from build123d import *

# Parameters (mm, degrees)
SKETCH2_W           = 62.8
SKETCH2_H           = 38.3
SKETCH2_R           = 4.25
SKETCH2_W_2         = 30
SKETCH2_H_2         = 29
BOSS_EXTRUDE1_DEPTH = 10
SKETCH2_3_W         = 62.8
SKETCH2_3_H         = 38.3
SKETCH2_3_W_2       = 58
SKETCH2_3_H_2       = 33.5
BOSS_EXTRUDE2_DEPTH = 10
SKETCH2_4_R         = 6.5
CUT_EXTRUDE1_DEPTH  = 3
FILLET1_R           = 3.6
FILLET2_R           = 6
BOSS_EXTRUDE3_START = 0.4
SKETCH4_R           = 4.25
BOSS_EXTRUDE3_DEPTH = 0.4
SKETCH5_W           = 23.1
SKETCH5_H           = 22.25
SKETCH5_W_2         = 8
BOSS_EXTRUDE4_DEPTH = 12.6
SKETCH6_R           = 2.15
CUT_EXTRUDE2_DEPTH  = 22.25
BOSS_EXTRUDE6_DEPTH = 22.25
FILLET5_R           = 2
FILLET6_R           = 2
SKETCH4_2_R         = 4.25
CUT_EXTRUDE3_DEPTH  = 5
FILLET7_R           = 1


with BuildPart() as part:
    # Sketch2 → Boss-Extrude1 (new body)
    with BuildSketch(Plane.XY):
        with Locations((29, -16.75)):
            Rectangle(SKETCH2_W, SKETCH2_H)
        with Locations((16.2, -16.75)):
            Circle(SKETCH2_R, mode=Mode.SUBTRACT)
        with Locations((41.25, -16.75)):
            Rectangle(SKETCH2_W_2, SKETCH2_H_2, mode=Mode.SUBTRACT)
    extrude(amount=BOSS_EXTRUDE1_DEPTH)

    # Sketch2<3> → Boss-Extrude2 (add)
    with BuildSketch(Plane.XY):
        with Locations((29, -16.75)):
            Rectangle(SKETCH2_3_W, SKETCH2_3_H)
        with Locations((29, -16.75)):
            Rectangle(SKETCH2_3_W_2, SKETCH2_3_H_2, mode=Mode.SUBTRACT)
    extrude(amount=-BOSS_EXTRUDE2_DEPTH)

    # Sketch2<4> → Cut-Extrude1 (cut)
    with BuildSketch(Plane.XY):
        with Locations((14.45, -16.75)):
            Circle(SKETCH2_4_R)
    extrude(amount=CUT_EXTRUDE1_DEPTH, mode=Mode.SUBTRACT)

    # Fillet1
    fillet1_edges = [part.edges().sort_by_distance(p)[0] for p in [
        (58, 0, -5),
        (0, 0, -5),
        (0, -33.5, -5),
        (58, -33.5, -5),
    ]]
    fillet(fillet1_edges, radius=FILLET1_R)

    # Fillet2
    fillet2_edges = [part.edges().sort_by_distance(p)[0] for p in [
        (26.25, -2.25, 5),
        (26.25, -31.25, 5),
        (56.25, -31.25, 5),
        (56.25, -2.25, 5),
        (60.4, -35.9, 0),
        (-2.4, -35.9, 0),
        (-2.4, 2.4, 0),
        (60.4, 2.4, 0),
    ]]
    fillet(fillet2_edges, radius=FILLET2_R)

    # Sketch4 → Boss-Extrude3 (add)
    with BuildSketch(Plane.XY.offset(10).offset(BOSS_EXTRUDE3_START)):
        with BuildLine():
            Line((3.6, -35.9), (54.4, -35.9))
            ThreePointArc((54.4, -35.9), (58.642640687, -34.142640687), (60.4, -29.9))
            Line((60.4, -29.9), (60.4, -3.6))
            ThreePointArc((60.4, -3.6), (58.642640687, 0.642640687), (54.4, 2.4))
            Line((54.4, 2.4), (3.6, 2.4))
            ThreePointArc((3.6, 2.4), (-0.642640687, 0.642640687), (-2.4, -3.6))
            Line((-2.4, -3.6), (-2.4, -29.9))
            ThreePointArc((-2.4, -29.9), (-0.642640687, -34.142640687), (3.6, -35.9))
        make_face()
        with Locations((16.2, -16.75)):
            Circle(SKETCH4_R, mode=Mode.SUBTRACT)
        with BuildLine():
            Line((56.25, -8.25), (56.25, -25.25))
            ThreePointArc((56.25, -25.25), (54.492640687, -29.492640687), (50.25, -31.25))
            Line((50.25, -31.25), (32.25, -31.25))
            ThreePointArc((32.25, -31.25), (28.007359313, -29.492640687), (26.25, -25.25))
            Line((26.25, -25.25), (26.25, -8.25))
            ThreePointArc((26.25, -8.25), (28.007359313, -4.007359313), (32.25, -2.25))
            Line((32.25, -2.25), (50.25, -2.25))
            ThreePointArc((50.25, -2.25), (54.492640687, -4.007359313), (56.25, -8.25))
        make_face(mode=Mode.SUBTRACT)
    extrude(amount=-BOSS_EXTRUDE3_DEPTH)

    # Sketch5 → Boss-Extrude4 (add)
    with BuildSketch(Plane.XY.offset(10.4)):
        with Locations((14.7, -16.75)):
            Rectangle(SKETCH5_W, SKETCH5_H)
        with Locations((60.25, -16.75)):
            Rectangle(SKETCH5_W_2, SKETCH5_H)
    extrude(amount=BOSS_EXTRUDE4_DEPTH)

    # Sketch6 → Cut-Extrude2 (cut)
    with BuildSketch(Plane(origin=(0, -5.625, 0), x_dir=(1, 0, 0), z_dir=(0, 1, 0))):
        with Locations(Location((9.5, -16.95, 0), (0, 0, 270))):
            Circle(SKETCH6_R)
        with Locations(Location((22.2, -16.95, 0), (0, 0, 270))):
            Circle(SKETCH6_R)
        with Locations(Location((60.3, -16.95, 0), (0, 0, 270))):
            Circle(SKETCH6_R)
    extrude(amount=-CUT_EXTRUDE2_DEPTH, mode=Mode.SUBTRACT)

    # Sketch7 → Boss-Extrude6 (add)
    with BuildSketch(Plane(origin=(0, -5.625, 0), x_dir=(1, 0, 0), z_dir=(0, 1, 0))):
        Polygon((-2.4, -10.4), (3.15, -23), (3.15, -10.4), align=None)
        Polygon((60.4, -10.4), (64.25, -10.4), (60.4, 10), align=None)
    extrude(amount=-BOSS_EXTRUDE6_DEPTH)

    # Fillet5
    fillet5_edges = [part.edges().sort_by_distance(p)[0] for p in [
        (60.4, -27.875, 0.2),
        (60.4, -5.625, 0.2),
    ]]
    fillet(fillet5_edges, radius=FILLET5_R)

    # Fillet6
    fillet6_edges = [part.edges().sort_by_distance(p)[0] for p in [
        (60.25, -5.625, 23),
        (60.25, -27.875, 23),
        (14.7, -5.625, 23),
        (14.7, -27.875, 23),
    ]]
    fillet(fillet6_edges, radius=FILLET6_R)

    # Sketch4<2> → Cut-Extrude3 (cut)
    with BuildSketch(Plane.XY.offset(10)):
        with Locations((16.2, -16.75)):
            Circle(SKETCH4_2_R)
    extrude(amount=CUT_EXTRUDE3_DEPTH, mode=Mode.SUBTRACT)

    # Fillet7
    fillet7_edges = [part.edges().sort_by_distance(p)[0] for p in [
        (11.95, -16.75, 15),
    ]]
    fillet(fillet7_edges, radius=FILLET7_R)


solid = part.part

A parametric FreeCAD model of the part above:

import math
import FreeCAD as App
import Part
import Sketcher

V = App.Vector


def edges_at(feature, points):
    """Names of the edges that pass closest to the given points."""
    edges = feature.Shape.Edges
    near = lambda p: min(range(len(edges)), key=lambda i: edges[i].distToShape(Part.Vertex(*p))[0])
    return sorted({f"Edge{near(p) + 1}" for p in points})


def add_polygon(sketch, points):
    """Adds a closed chain of lines whose ends are joined by coincident constraints."""
    first, n = sketch.GeometryCount, len(points)
    for a, b in zip(points, points[1:] + points[:1]):
        sketch.addGeometry(Part.LineSegment(App.Vector(*a, 0), App.Vector(*b, 0)), False)
    for i in range(n):
        sketch.addConstraint(Sketcher.Constraint("Coincident", first + i, 2, first + (i + 1) % n, 1))

doc = App.newDocument("Part")
body = doc.addObject("PartDesign::Body", "Body")

# Sketch on XY plane
sketch1 = body.newObject("Sketcher::SketchObject", "Sketch")
sketch1.AttachmentSupport = (doc.getObject("XY_Plane"), [""])
sketch1.MapMode = "FlatFace"
add_polygon(sketch1, [(-2.4, 2.4), (-2.4, -35.9), (60.4, -35.9), (60.4, 2.4)])  # lines 0-3
sketch1.addGeometry(Part.Circle(V(16.2, -16.8, 0), V(0, 0, 1), 4.2), False)  # 4
add_polygon(sketch1, [(56.2, -31.2), (26.2, -31.2), (26.2, -2.2), (56.2, -2.2)])  # lines 5-8
sketch1.addConstraint(Sketcher.Constraint("Vertical", 0))
sketch1.addConstraint(Sketcher.Constraint("Horizontal", 1))
sketch1.addConstraint(Sketcher.Constraint("Vertical", 2))
sketch1.addConstraint(Sketcher.Constraint("Horizontal", 3))
sketch1.addConstraint(Sketcher.Constraint("Horizontal", 5))
sketch1.addConstraint(Sketcher.Constraint("Vertical", 6))
sketch1.addConstraint(Sketcher.Constraint("Horizontal", 7))
sketch1.addConstraint(Sketcher.Constraint("Vertical", 8))
sketch1.addConstraint(Sketcher.Constraint("Diameter", 4, 8.5))
sketch1.addConstraint(Sketcher.Constraint("DistanceX", 5, 2, 5, 1, 30.0))
sketch1.addConstraint(Sketcher.Constraint("DistanceY", 6, 1, 6, 2, 29.0))
sketch1.addConstraint(Sketcher.Constraint("DistanceX", 1, 1, 1, 2, 62.8))
sketch1.addConstraint(Sketcher.Constraint("DistanceY", 0, 2, 0, 1, 38.3))
sketch1.addConstraint(Sketcher.Constraint("DistanceX", -1, 1, 4, 3, 16.2))
sketch1.addConstraint(Sketcher.Constraint("DistanceX", 0, 2, -1, 1, 2.4))
sketch1.addConstraint(Sketcher.Constraint("DistanceY", 0, 2, -1, 1, 35.9))
sketch1.addConstraint(Sketcher.Constraint("DistanceY", 5, 2, 4, 3, 14.5))
sketch1.addConstraint(Sketcher.Constraint("DistanceY", 4, 3, -1, 1, 16.75))
sketch1.addConstraint(Sketcher.Constraint("DistanceX", -1, 1, 5, 2, 26.25))
pad1 = body.newObject("PartDesign::Pad", "Pad")
pad1.Profile = sketch1
pad1.Length = 10

# Sketch on XY plane
sketch2 = body.newObject("Sketcher::SketchObject", "Sketch001")
sketch2.AttachmentSupport = (doc.getObject("XY_Plane"), [""])
sketch2.MapMode = "FlatFace"
add_polygon(sketch2, [(-2, 2), (-2, -36), (60, -36), (60, 2)])  # lines 0-3
add_polygon(sketch2, [(58, -34), (0, -34), (0, 0), (58, 0)])  # lines 4-7
sketch2.addConstraint(Sketcher.Constraint("Vertical", 0))
sketch2.addConstraint(Sketcher.Constraint("Horizontal", 1))
sketch2.addConstraint(Sketcher.Constraint("Vertical", 2))
sketch2.addConstraint(Sketcher.Constraint("Horizontal", 3))
sketch2.addConstraint(Sketcher.Constraint("Horizontal", 4))
sketch2.addConstraint(Sketcher.Constraint("Vertical", 5))
sketch2.addConstraint(Sketcher.Constraint("Horizontal", 6))
sketch2.addConstraint(Sketcher.Constraint("Vertical", 7))
sketch2.addConstraint(Sketcher.Constraint("Coincident", 5, 2, -1, 1))
sketch2.addConstraint(Sketcher.Constraint("DistanceX", 4, 2, 4, 1, 58.0))
sketch2.addConstraint(Sketcher.Constraint("DistanceX", 1, 1, 1, 2, 62.8))
sketch2.addConstraint(Sketcher.Constraint("DistanceY", 0, 2, 0, 1, 38.3))
sketch2.addConstraint(Sketcher.Constraint("DistanceY", 5, 1, 5, 2, 33.5))
sketch2.addConstraint(Sketcher.Constraint("DistanceX", 0, 2, -1, 1, 2.4))
sketch2.addConstraint(Sketcher.Constraint("DistanceY", 0, 2, -1, 1, 35.9))
pad2 = body.newObject("PartDesign::Pad", "Pad001")
pad2.Profile = sketch2
pad2.Length = 10
pad2.Reversed = True

# Sketch on XY plane
sketch3 = body.newObject("Sketcher::SketchObject", "Sketch002")
sketch3.AttachmentSupport = (doc.getObject("XY_Plane"), [""])
sketch3.MapMode = "FlatFace"
sketch3.addGeometry(Part.Circle(V(14, -17, 0), V(0, 0, 1), 6), False)
sketch3.addConstraint(Sketcher.Constraint("Diameter", 0, 13.0))
sketch3.addConstraint(Sketcher.Constraint("DistanceX", -1, 1, 0, 3, 14.45))
sketch3.addConstraint(Sketcher.Constraint("DistanceY", 0, 3, -1, 1, 16.75))
pocket1 = body.newObject("PartDesign::Pocket", "Pocket")
pocket1.Profile = sketch3
pocket1.Length = 3
pocket1.Reversed = True
doc.recompute()

fillet = body.newObject("PartDesign::Fillet", "Fillet")
fillet.Base = (pocket1, edges_at(pocket1, [
    (58, 0, -5),
    (0, 0, -5),
    (0, -33.5, -5),
    (58, -33.5, -5),
]))
fillet.Radius = 3.6
doc.recompute()

fillet2 = body.newObject("PartDesign::Fillet", "Fillet001")
fillet2.Base = (fillet, edges_at(fillet, [
    (26.25, -2.25, 5),
    (26.25, -31.25, 5),
    (56.25, -31.25, 5),
    (56.25, -2.25, 5),
    (60.4, -35.9, 0),
    (-2.4, -35.9, 0),
    (-2.4, 2.4, 0),
    (60.4, 2.4, 0),
]))
fillet2.Radius = 6

# Sketch on XY plane
sketch4 = body.newObject("Sketcher::SketchObject", "Sketch003")
sketch4.AttachmentSupport = (doc.getObject("XY_Plane"), [""])
sketch4.MapMode = "FlatFace"
sketch4.AttachmentOffset = App.Placement(V(0, 0, 10.4), App.Rotation())
sketch4.addGeometry(Part.LineSegment(V(3.6, -35.9, 0), V(54.4, -35.9, 0)), False)
sketch4.addGeometry(Part.ArcOfCircle(Part.Circle(V(54.4, -29.9, 0), V(0, 0, 1), 6), math.radians(-90), math.radians(0)), False)
sketch4.addGeometry(Part.LineSegment(V(60.4, -29.9, 0), V(60.4, -3.6, 0)), False)
sketch4.addGeometry(Part.ArcOfCircle(Part.Circle(V(54.4, -3.6, 0), V(0, 0, 1), 6), math.radians(0), math.radians(90)), False)
sketch4.addGeometry(Part.LineSegment(V(54.4, 2.4, 0), V(3.6, 2.4, 0)), False)
sketch4.addGeometry(Part.ArcOfCircle(Part.Circle(V(3.6, -3.6, 0), V(0, 0, 1), 6), math.radians(90), math.radians(180)), False)
sketch4.addGeometry(Part.LineSegment(V(-2.4, -3.6, 0), V(-2.4, -29.9, 0)), False)
sketch4.addGeometry(Part.ArcOfCircle(Part.Circle(V(3.6, -29.9, 0), V(0, 0, 1), 6), math.radians(180), math.radians(270)), False)
sketch4.addGeometry(Part.Circle(V(16.2, -16.8, 0), V(0, 0, 1), 4.2), False)
sketch4.addGeometry(Part.ArcOfCircle(Part.Circle(V(50.2, -8.2, 0), V(0, 0, 1), 6), math.radians(0), math.radians(90)), False)
sketch4.addGeometry(Part.LineSegment(V(56.2, -8.2, 0), V(56.2, -25.2, 0)), False)
sketch4.addGeometry(Part.ArcOfCircle(Part.Circle(V(50.2, -25.2, 0), V(0, 0, 1), 6), math.radians(-90), math.radians(0)), False)
sketch4.addGeometry(Part.LineSegment(V(50.2, -31.2, 0), V(32.2, -31.2, 0)), False)
sketch4.addGeometry(Part.ArcOfCircle(Part.Circle(V(32.2, -25.2, 0), V(0, 0, 1), 6), math.radians(180), math.radians(270)), False)
sketch4.addGeometry(Part.LineSegment(V(26.2, -25.2, 0), V(26.2, -8.2, 0)), False)
sketch4.addGeometry(Part.ArcOfCircle(Part.Circle(V(32.2, -8.2, 0), V(0, 0, 1), 6), math.radians(90), math.radians(180)), False)
sketch4.addGeometry(Part.LineSegment(V(32.2, -2.2, 0), V(50.2, -2.2, 0)), False)
sketch4.addConstraint(Sketcher.Constraint("Tangent", 0, 2, 1, 1))
sketch4.addConstraint(Sketcher.Constraint("Tangent", 1, 2, 2, 1))
sketch4.addConstraint(Sketcher.Constraint("Tangent", 2, 2, 3, 1))
sketch4.addConstraint(Sketcher.Constraint("Tangent", 3, 2, 4, 1))
sketch4.addConstraint(Sketcher.Constraint("Tangent", 4, 2, 5, 1))
sketch4.addConstraint(Sketcher.Constraint("Tangent", 5, 2, 6, 1))
sketch4.addConstraint(Sketcher.Constraint("Tangent", 6, 2, 7, 1))
sketch4.addConstraint(Sketcher.Constraint("Tangent", 7, 2, 0, 1))
sketch4.addConstraint(Sketcher.Constraint("Tangent", 9, 1, 10, 1))
sketch4.addConstraint(Sketcher.Constraint("Tangent", 10, 2, 11, 2))
sketch4.addConstraint(Sketcher.Constraint("Tangent", 11, 1, 12, 1))
sketch4.addConstraint(Sketcher.Constraint("Tangent", 12, 2, 13, 2))
sketch4.addConstraint(Sketcher.Constraint("Tangent", 13, 1, 14, 1))
sketch4.addConstraint(Sketcher.Constraint("Tangent", 14, 2, 15, 2))
sketch4.addConstraint(Sketcher.Constraint("Tangent", 15, 1, 16, 1))
sketch4.addConstraint(Sketcher.Constraint("Tangent", 16, 2, 9, 2))
sketch4.addConstraint(Sketcher.Constraint("Horizontal", 0))
sketch4.addConstraint(Sketcher.Constraint("Vertical", 2))
sketch4.addConstraint(Sketcher.Constraint("Horizontal", 4))
sketch4.addConstraint(Sketcher.Constraint("Vertical", 6))
sketch4.addConstraint(Sketcher.Constraint("Vertical", 10))
sketch4.addConstraint(Sketcher.Constraint("Horizontal", 12))
sketch4.addConstraint(Sketcher.Constraint("Vertical", 14))
sketch4.addConstraint(Sketcher.Constraint("Horizontal", 16))
sketch4.addConstraint(Sketcher.Constraint("Equal", 1, 3))
sketch4.addConstraint(Sketcher.Constraint("Equal", 3, 5))
sketch4.addConstraint(Sketcher.Constraint("Equal", 5, 7))
sketch4.addConstraint(Sketcher.Constraint("Equal", 7, 9))
sketch4.addConstraint(Sketcher.Constraint("Equal", 9, 11))
sketch4.addConstraint(Sketcher.Constraint("Equal", 11, 13))
sketch4.addConstraint(Sketcher.Constraint("Equal", 13, 15))
sketch4.addConstraint(Sketcher.Constraint("Radius", 1, 6.0))
sketch4.addConstraint(Sketcher.Constraint("Diameter", 8, 8.5))
sketch4.addConstraint(Sketcher.Constraint("DistanceX", 12, 2, 12, 1, 18.0))
sketch4.addConstraint(Sketcher.Constraint("DistanceY", 10, 2, 10, 1, 17.0))
sketch4.addConstraint(Sketcher.Constraint("DistanceX", 0, 1, 0, 2, 50.8))
sketch4.addConstraint(Sketcher.Constraint("DistanceY", 2, 1, 2, 2, 26.3))
sketch4.addConstraint(Sketcher.Constraint("DistanceX", -1, 1, 1, 3, 54.4))
sketch4.addConstraint(Sketcher.Constraint("DistanceY", 1, 3, -1, 1, 29.9))
sketch4.addConstraint(Sketcher.Constraint("DistanceX", -1, 1, 8, 3, 16.2))
sketch4.addConstraint(Sketcher.Constraint("DistanceY", 8, 3, 9, 3, 8.5))
sketch4.addConstraint(Sketcher.Constraint("DistanceY", 8, 3, -1, 1, 16.75))
sketch4.addConstraint(Sketcher.Constraint("DistanceX", -1, 1, 9, 3, 50.25))
pad3 = body.newObject("PartDesign::Pad", "Pad002")
pad3.Profile = sketch4
pad3.Length = 0.4
pad3.Reversed = True

# Sketch on XY plane
sketch5 = body.newObject("Sketcher::SketchObject", "Sketch004")
sketch5.AttachmentSupport = (doc.getObject("XY_Plane"), [""])
sketch5.MapMode = "FlatFace"
sketch5.AttachmentOffset = App.Placement(V(0, 0, 10.4), App.Rotation())
add_polygon(sketch5, [(3, -6), (3, -28), (26, -28), (26, -6)])  # lines 0-3
add_polygon(sketch5, [(56, -6), (56, -28), (64, -28), (64, -6)])  # lines 4-7
sketch5.addConstraint(Sketcher.Constraint("Vertical", 0))
sketch5.addConstraint(Sketcher.Constraint("Horizontal", 1))
sketch5.addConstraint(Sketcher.Constraint("Vertical", 2))
sketch5.addConstraint(Sketcher.Constraint("Horizontal", 3))
sketch5.addConstraint(Sketcher.Constraint("Vertical", 4))
sketch5.addConstraint(Sketcher.Constraint("Horizontal", 5))
sketch5.addConstraint(Sketcher.Constraint("Vertical", 6))
sketch5.addConstraint(Sketcher.Constraint("Horizontal", 7))
sketch5.addConstraint(Sketcher.Constraint("Horizontal", 1, 2, 4, 2))
sketch5.addConstraint(Sketcher.Constraint("Horizontal", 3, 2, 6, 2))
sketch5.addConstraint(Sketcher.Constraint("DistanceX", 5, 1, 5, 2, 8.0))
sketch5.addConstraint(Sketcher.Constraint("DistanceX", 1, 1, 1, 2, 23.1))
sketch5.addConstraint(Sketcher.Constraint("DistanceX", 1, 2, 4, 2, 30.0))
sketch5.addConstraint(Sketcher.Constraint("DistanceY", 0, 2, 0, 1, 22.25))
sketch5.addConstraint(Sketcher.Constraint("DistanceX", -1, 1, 0, 2, 3.15))
sketch5.addConstraint(Sketcher.Constraint("DistanceY", 0, 2, -1, 1, 27.875))
pad4 = body.newObject("PartDesign::Pad", "Pad003")
pad4.Profile = sketch5
pad4.Length = 12.6

# Sketch on XZ plane
sketch6 = body.newObject("Sketcher::SketchObject", "Sketch005")
sketch6.AttachmentSupport = (doc.getObject("XZ_Plane"), [""])
sketch6.MapMode = "FlatFace"
sketch6.AttachmentOffset = App.Placement(V(0, 0, 5.625), App.Rotation())
sketch6.addGeometry(Part.Circle(V(9.5, 16.9, 0), V(0, 0, 1), 2.1), False)
sketch6.addGeometry(Part.Circle(V(22.2, 16.9, 0), V(0, 0, 1), 2.1), False)
sketch6.addGeometry(Part.Circle(V(60.3, 16.9, 0), V(0, 0, 1), 2.1), False)
sketch6.addConstraint(Sketcher.Constraint("Equal", 0, 1))
sketch6.addConstraint(Sketcher.Constraint("Equal", 1, 2))
sketch6.addConstraint(Sketcher.Constraint("Horizontal", 0, 3, 1, 3))
sketch6.addConstraint(Sketcher.Constraint("Horizontal", 1, 3, 2, 3))
sketch6.addConstraint(Sketcher.Constraint("Diameter", 0, 4.3))
sketch6.addConstraint(Sketcher.Constraint("DistanceX", -1, 1, 0, 3, 9.5))
sketch6.addConstraint(Sketcher.Constraint("DistanceX", -1, 1, 1, 3, 22.2))
sketch6.addConstraint(Sketcher.Constraint("DistanceX", -1, 1, 2, 3, 60.3))
sketch6.addConstraint(Sketcher.Constraint("DistanceY", -1, 1, 0, 3, 16.95))
pocket2 = body.newObject("PartDesign::Pocket", "Pocket001")
pocket2.Profile = sketch6
pocket2.Length = 22.25
pocket2.Reversed = True

# Sketch on XZ plane
sketch7 = body.newObject("Sketcher::SketchObject", "Sketch006")
sketch7.AttachmentSupport = (doc.getObject("XZ_Plane"), [""])
sketch7.MapMode = "FlatFace"
sketch7.AttachmentOffset = App.Placement(V(0, 0, 5.625), App.Rotation())
add_polygon(sketch7, [(-2.4, 10.4), (3.1, 23), (3.1, 10.4)])  # lines 0-2
add_polygon(sketch7, [(60.4, 10.4), (64.2, 10.4), (60.4, -10)])  # lines 3-5
sketch7.addConstraint(Sketcher.Constraint("Vertical", 1))
sketch7.addConstraint(Sketcher.Constraint("Horizontal", 2))
sketch7.addConstraint(Sketcher.Constraint("Horizontal", 3))
sketch7.addConstraint(Sketcher.Constraint("Vertical", 5))
sketch7.addConstraint(Sketcher.Constraint("Horizontal", 2, 2, 3, 2))
sketch7.addConstraint(Sketcher.Constraint("DistanceY", 1, 2, 1, 1, 12.6))
sketch7.addConstraint(Sketcher.Constraint("DistanceY", 5, 1, 5, 2, 20.4))
sketch7.addConstraint(Sketcher.Constraint("DistanceY", -1, 1, 0, 2, 23.0))
sketch7.addConstraint(Sketcher.Constraint("DistanceX", 2, 2, 2, 1, 5.55))
sketch7.addConstraint(Sketcher.Constraint("DistanceX", 3, 1, 3, 2, 3.85))
sketch7.addConstraint(Sketcher.Constraint("DistanceX", 2, 2, -1, 1, 2.4))
sketch7.addConstraint(Sketcher.Constraint("DistanceX", -1, 1, 4, 2, 60.4))
pad5 = body.newObject("PartDesign::Pad", "Pad004")
pad5.Profile = sketch7
pad5.Length = 22.25
doc.recompute()

fillet3 = body.newObject("PartDesign::Fillet", "Fillet002")
fillet3.Base = (pad5, edges_at(pad5, [(60.4, -27.875, 0.2), (60.4, -5.625, 0.2)]))
fillet3.Radius = 2
doc.recompute()

fillet4 = body.newObject("PartDesign::Fillet", "Fillet003")
fillet4.Base = (fillet3, edges_at(fillet3, [
    (60.25, -5.625, 23),
    (60.25, -27.875, 23),
    (14.7, -5.625, 23),
    (14.7, -27.875, 23),
]))
fillet4.Radius = 2

# Sketch on XY plane
sketch8 = body.newObject("Sketcher::SketchObject", "Sketch007")
sketch8.AttachmentSupport = (doc.getObject("XY_Plane"), [""])
sketch8.MapMode = "FlatFace"
sketch8.AttachmentOffset = App.Placement(V(0, 0, 10), App.Rotation())
sketch8.addGeometry(Part.Circle(V(16.2, -16.8, 0), V(0, 0, 1), 4.2), False)
sketch8.addConstraint(Sketcher.Constraint("Diameter", 0, 8.5))
sketch8.addConstraint(Sketcher.Constraint("DistanceX", -1, 1, 0, 3, 16.2))
sketch8.addConstraint(Sketcher.Constraint("DistanceY", 0, 3, -1, 1, 16.75))
pocket3 = body.newObject("PartDesign::Pocket", "Pocket002")
pocket3.Profile = sketch8
pocket3.Length = 5
pocket3.Reversed = True
doc.recompute()

fillet5 = body.newObject("PartDesign::Fillet", "Fillet004")
fillet5.Base = (pocket3, edges_at(pocket3, [(11.95, -16.75, 15)]))
fillet5.Radius = 1

doc.recompute()
